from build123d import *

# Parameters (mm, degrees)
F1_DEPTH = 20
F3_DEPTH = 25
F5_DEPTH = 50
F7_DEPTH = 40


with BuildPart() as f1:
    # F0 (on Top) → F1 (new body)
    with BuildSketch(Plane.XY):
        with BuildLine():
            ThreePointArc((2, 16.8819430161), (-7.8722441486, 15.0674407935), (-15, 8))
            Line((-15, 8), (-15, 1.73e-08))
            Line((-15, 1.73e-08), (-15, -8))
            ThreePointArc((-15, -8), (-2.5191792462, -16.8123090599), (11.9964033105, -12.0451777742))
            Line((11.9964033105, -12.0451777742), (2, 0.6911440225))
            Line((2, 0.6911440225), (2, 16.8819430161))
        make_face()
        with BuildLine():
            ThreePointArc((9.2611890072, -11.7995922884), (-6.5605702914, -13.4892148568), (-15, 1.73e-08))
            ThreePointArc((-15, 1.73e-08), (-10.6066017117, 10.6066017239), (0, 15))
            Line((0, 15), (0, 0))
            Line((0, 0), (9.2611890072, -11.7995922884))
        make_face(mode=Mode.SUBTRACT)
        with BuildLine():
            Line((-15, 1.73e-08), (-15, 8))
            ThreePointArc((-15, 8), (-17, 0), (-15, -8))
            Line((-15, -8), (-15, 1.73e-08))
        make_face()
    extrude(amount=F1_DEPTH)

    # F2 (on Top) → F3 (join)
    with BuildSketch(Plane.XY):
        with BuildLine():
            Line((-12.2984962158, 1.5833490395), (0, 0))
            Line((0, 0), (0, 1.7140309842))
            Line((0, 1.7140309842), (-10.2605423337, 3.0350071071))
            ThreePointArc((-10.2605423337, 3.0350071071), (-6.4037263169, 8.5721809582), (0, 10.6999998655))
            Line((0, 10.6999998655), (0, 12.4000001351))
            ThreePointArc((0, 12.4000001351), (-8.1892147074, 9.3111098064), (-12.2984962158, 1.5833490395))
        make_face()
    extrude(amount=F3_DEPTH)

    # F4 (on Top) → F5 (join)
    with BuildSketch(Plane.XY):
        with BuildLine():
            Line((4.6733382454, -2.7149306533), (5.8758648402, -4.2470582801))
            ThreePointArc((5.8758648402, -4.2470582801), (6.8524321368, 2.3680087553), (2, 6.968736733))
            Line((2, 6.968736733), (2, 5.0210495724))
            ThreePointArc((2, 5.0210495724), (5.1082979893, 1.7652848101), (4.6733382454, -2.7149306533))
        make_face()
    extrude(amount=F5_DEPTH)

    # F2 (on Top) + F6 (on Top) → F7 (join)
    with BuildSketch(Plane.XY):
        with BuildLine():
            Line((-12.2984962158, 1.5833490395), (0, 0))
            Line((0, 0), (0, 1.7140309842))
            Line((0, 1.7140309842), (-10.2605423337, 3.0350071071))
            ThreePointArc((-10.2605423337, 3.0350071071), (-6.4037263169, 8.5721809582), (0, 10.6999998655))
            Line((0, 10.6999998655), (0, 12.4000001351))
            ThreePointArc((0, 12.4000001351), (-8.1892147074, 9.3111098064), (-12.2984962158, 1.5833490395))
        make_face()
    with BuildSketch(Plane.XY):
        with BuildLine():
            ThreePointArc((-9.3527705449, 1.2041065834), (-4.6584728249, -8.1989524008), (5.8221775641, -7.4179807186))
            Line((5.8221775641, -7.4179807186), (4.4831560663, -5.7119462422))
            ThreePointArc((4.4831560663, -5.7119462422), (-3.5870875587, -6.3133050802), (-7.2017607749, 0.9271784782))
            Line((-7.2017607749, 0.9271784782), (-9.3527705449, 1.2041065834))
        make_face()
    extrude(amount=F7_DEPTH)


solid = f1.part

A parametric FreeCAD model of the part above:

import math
import FreeCAD as App
import Part
import Sketcher

V = App.Vector

doc = App.newDocument("Part")
params = doc.addObject("Spreadsheet::Sheet", "Params")
for row, (alias, value) in enumerate([
    ("sketch1_radius", "17 mm"),
    ("sketch1_radius2", "15 mm"),
    ("pad1_length", "20 mm"),
    ("sketch2_radius", "10.7 mm"),
    ("sketch2_radius2", "12.4 mm"),
    ("pad2_length", "25 mm"),
    ("pad3_length", "50 mm"),
    ("sketch4_radius", "10.7 mm"),
    ("sketch4_radius2", "12.4 mm"),
    ("pad4_length", "40 mm"),
], start=1):
    params.set(f"A{row}", alias)
    params.set(f"B{row}", "=" + value)
    params.setAlias(f"B{row}", alias)

body = doc.addObject("PartDesign::Body", "Body")

# Sketch on XY plane
sketch1 = body.newObject("Sketcher::SketchObject", "Sketch")
sketch1.AttachmentSupport = (doc.getObject("XY_Plane"), [""])
sketch1.MapMode = "FlatFace"
sketch1.addGeometry(Part.LineSegment(V(11.996403, -12.045178, 0), V(2, 0.691144, 0)), False)
sketch1.addGeometry(Part.LineSegment(V(2, 0.691144, 0), V(2, 16.881943, 0)), False)
sketch1.addGeometry(Part.ArcOfCircle(Part.Circle(V(0, 0, 0), V(0, 0, 1), 17), math.radians(83.243673), math.radians(151.927513)), False)
sketch1.addGeometry(Part.ArcOfCircle(Part.Circle(V(0, 0, 0), V(0, 0, 1), 17), math.radians(151.927513), math.radians(314.883761)), False)
sketch1.addGeometry(Part.ArcOfCircle(Part.Circle(V(0, 0, 0), V(0, 0, 1), 15), math.radians(180), math.radians(308.127434)), False)
sketch1.addGeometry(Part.ArcOfCircle(Part.Circle(V(0, 0, 0), V(0, 0, 1), 15), math.radians(90), math.radians(180)), False)
sketch1.addGeometry(Part.LineSegment(V(0, 15, 0), V(0, 0, 0)), False)
sketch1.addGeometry(Part.LineSegment(V(0, 0, 0), V(9.261189, -11.799592, 0)), False)
sketch1.addConstraint(Sketcher.Constraint("Coincident", 0, 2, 1, 1))
sketch1.addConstraint(Sketcher.Constraint("Coincident", 1, 2, 2, 1))
sketch1.addConstraint(Sketcher.Constraint("Tangent", 2, 2, 3, 1))
sketch1.addConstraint(Sketcher.Constraint("Coincident", 3, 2, 0, 1))
sketch1.addConstraint(Sketcher.Constraint("Tangent", 4, 1, 5, 2))
sketch1.addConstraint(Sketcher.Constraint("Coincident", 5, 1, 6, 1))
sketch1.addConstraint(Sketcher.Constraint("Coincident", 6, 2, 7, 1))
sketch1.addConstraint(Sketcher.Constraint("Coincident", 7, 2, 4, 2))
sketch1.addConstraint(Sketcher.Constraint("Vertical", 1))
sketch1.addConstraint(Sketcher.Constraint("Vertical", 6))
sketch1.addConstraint(Sketcher.Constraint("Coincident", 2, 3, -1, 1))
sketch1.addConstraint(Sketcher.Constraint("Coincident", 4, 3, -1, 1))
sketch1.addConstraint(Sketcher.Constraint("Coincident", 6, 2, -1, 1))
sketch1.addConstraint(Sketcher.Constraint("Equal", 2, 3))
sketch1.addConstraint(Sketcher.Constraint("Equal", 4, 5))
sketch1.addConstraint(Sketcher.Constraint("PointOnObject", 4, 1, -1))
sketch1.addConstraint(Sketcher.Constraint("Parallel", 0, 7))
sketch1.addConstraint(Sketcher.Constraint("Vertical", 2, 2, 4, 1))
sketch1.addConstraint(Sketcher.Constraint("Radius", 2, 17.0))
sketch1.addConstraint(Sketcher.Constraint("Radius", 4, 15.0))
sketch1.addConstraint(Sketcher.Constraint("DistanceX", -1, 1, 0, 2, 2.0))
sketch1.addConstraint(Sketcher.Constraint("DistanceY", 1, 1, 1, 2, 16.190799))
sketch1.addConstraint(Sketcher.Constraint("Distance", 0, 16.190799))
sketch1.setExpression("Constraints[18]", "Params.sketch1_radius")
sketch1.setExpression("Constraints[19]", "Params.sketch1_radius2")
pad1 = body.newObject("PartDesign::Pad", "Pad")
pad1.Profile = sketch1
pad1.setExpression("Length", "Params.pad1_length")

# Sketch on XY plane
sketch2 = body.newObject("Sketcher::SketchObject", "Sketch001")
sketch2.AttachmentSupport = (doc.getObject("XY_Plane"), [""])
sketch2.MapMode = "FlatFace"
sketch2.addGeometry(Part.LineSegment(V(-12.298496, 1.583349, 0), V(0, 0, 0)), False)
sketch2.addGeometry(Part.LineSegment(V(0, 0, 0), V(0, 1.714031, 0)), False)
sketch2.addGeometry(Part.LineSegment(V(0, 1.714031, 0), V(-10.260542, 3.035007, 0)), False)
sketch2.addGeometry(Part.ArcOfCircle(Part.Circle(V(0, 0, 0), V(0, 0, 1), 10.7), math.radians(90), math.radians(163.522098)), False)
sketch2.addGeometry(Part.LineSegment(V(0, 10.7, 0), V(0, 12.4, 0)), False)
sketch2.addGeometry(Part.ArcOfCircle(Part.Circle(V(0, 0, 0), V(0, 0, 1), 12.4), math.radians(90), math.radians(172.663906)), False)
sketch2.addConstraint(Sketcher.Constraint("Coincident", 0, 2, 1, 1))
sketch2.addConstraint(Sketcher.Constraint("Coincident", 1, 2, 2, 1))
sketch2.addConstraint(Sketcher.Constraint("Coincident", 2, 2, 3, 2))
sketch2.addConstraint(Sketcher.Constraint("Coincident", 3, 1, 4, 1))
sketch2.addConstraint(Sketcher.Constraint("Coincident", 4, 2, 5, 1))
sketch2.addConstraint(Sketcher.Constraint("Coincident", 5, 2, 0, 1))
sketch2.addConstraint(Sketcher.Constraint("Vertical", 1))
sketch2.addConstraint(Sketcher.Constraint("Vertical", 4))
sketch2.addConstraint(Sketcher.Constraint("Coincident", 3, 3, -1, 1))
sketch2.addConstraint(Sketcher.Constraint("Coincident", 5, 3, -1, 1))
sketch2.addConstraint(Sketcher.Constraint("Coincident", 0, 2, -1, 1))
sketch2.addConstraint(Sketcher.Constraint("PointOnObject", 3, 1, -2))
sketch2.addConstraint(Sketcher.Constraint("Parallel", 0, 2))
sketch2.addConstraint(Sketcher.Constraint("Radius", 3, 10.7))
sketch2.addConstraint(Sketcher.Constraint("Radius", 5, 12.4))
sketch2.addConstraint(Sketcher.Constraint("DistanceY", 1, 1, 1, 2, 1.714031))
sketch2.addConstraint(Sketcher.Constraint("DistanceY", -1, 1, 5, 2, 1.583349))
sketch2.setExpression("Constraints[13]", "Params.sketch2_radius")
sketch2.setExpression("Constraints[14]", "Params.sketch2_radius2")
pad2 = body.newObject("PartDesign::Pad", "Pad001")
pad2.Profile = sketch2
pad2.setExpression("Length", "Params.pad2_length")

# Sketch on XY plane
sketch3 = body.newObject("Sketcher::SketchObject", "Sketch002")
sketch3.AttachmentSupport = (doc.getObject("XY_Plane"), [""])
sketch3.MapMode = "FlatFace"
sketch3.addGeometry(Part.LineSegment(V(4.673338, -2.714931, 0), V(5.875865, -4.247058, 0)), False)
sketch3.addGeometry(Part.ArcOfCircle(Part.Circle(V(0, 0, 0), V(0, 0, 1), 7.250055), math.radians(-35.859295), math.radians(73.986729)), False)
sketch3.addGeometry(Part.LineSegment(V(2, 6.968737, 0), V(2, 5.02105, 0)), False)
sketch3.addGeometry(Part.ArcOfCircle(Part.Circle(V(0, 0, 0), V(0, 0, 1), 5.404714), math.radians(-30.154032), math.radians(68.281466)), False)
sketch3.addConstraint(Sketcher.Constraint("Coincident", 0, 2, 1, 1))
sketch3.addConstraint(Sketcher.Constraint("Coincident", 1, 2, 2, 1))
sketch3.addConstraint(Sketcher.Constraint("Coincident", 2, 2, 3, 2))
sketch3.addConstraint(Sketcher.Constraint("Coincident", 3, 1, 0, 1))
sketch3.addConstraint(Sketcher.Constraint("Vertical", 2))
sketch3.addConstraint(Sketcher.Constraint("Coincident", 1, 3, -1, 1))
sketch3.addConstraint(Sketcher.Constraint("Coincident", 3, 3, -1, 1))
sketch3.addConstraint(Sketcher.Constraint("DistanceX", -1, 1, 1, 2, 2.0))
sketch3.addConstraint(Sketcher.Constraint("Radius", 1, 7.250055))
sketch3.addConstraint(Sketcher.Constraint("Radius", 3, 5.404714))
sketch3.addConstraint(Sketcher.Constraint("DistanceY", 0, 2, -1, 1, 4.247058))
sketch3.addConstraint(Sketcher.Constraint("DistanceX", -1, 1, 3, 1, 4.673338))
pad3 = body.newObject("PartDesign::Pad", "Pad002")
pad3.Profile = sketch3
pad3.setExpression("Length", "Params.pad3_length")

# Sketch on XY plane
sketch4 = body.newObject("Sketcher::SketchObject", "Sketch003")
sketch4.AttachmentSupport = (doc.getObject("XY_Plane"), [""])
sketch4.MapMode = "FlatFace"
sketch4.addGeometry(Part.LineSegment(V(-12.298496, 1.583349, 0), V(-9.352771, 1.204107, 0)), False)
sketch4.addGeometry(Part.ArcOfCircle(Part.Circle(V(0, 0, 0), V(0, 0, 1), 9.429962), math.radians(172.663906), math.radians(308.127434)), False)
sketch4.addGeometry(Part.LineSegment(V(5.822178, -7.417981, 0), V(4.483156, -5.711946, 0)), False)
sketch4.addGeometry(Part.ArcOfCircle(Part.Circle(V(0, 0, 0), V(0, 0, 1), 7.2612), math.radians(172.663906), math.radians(308.127434)), False)
sketch4.addGeometry(Part.LineSegment(V(-7.201761, 0.927178, 0), V(0, 0, 0)), False)
sketch4.addGeometry(Part.LineSegment(V(0, 0, 0), V(0, 1.714031, 0)), False)
sketch4.addGeometry(Part.LineSegment(V(0, 1.714031, 0), V(-10.260542, 3.035007, 0)), False)
sketch4.addGeometry(Part.ArcOfCircle(Part.Circle(V(0, 0, 0), V(0, 0, 1), 10.7), math.radians(90), math.radians(163.522098)), False)
sketch4.addGeometry(Part.LineSegment(V(0, 10.7, 0), V(0, 12.4, 0)), False)
sketch4.addGeometry(Part.ArcOfCircle(Part.Circle(V(0, 0, 0), V(0, 0, 1), 12.4), math.radians(90), math.radians(172.663906)), False)
sketch4.addConstraint(Sketcher.Constraint("Coincident", 0, 2, 1, 1))
sketch4.addConstraint(Sketcher.Constraint("Coincident", 1, 2, 2, 1))
sketch4.addConstraint(Sketcher.Constraint("Coincident", 2, 2, 3, 2))
sketch4.addConstraint(Sketcher.Constraint("Coincident", 3, 1, 4, 1))
sketch4.addConstraint(Sketcher.Constraint("Coincident", 4, 2, 5, 1))
sketch4.addConstraint(Sketcher.Constraint("Coincident", 5, 2, 6, 1))
sketch4.addConstraint(Sketcher.Constraint("Coincident", 6, 2, 7, 2))
sketch4.addConstraint(Sketcher.Constraint("Coincident", 7, 1, 8, 1))
sketch4.addConstraint(Sketcher.Constraint("Coincident", 8, 2, 9, 1))
sketch4.addConstraint(Sketcher.Constraint("Coincident", 9, 2, 0, 1))
sketch4.addConstraint(Sketcher.Constraint("Vertical", 5))
sketch4.addConstraint(Sketcher.Constraint("Vertical", 8))
sketch4.addConstraint(Sketcher.Constraint("Coincident", 1, 3, -1, 1))
sketch4.addConstraint(Sketcher.Constraint("Coincident", 3, 3, -1, 1))
sketch4.addConstraint(Sketcher.Constraint("Coincident", 7, 3, -1, 1))
sketch4.addConstraint(Sketcher.Constraint("Coincident", 9, 3, -1, 1))
sketch4.addConstraint(Sketcher.Constraint("Coincident", 4, 2, -1, 1))
sketch4.addConstraint(Sketcher.Constraint("PointOnObject", 7, 1, -2))
sketch4.addConstraint(Sketcher.Constraint("Parallel", 0, 4))
sketch4.addConstraint(Sketcher.Constraint("Parallel", 4, 6))
sketch4.addConstraint(Sketcher.Constraint("Radius", 7, 10.7))
sketch4.addConstraint(Sketcher.Constraint("Radius", 9, 12.4))
sketch4.addConstraint(Sketcher.Constraint("Radius", 3, 7.2612))
sketch4.addConstraint(Sketcher.Constraint("Radius", 1, 9.429962))
sketch4.addConstraint(Sketcher.Constraint("DistanceY", 5, 1, 5, 2, 1.714031))
sketch4.addConstraint(Sketcher.Constraint("DistanceY", 0, 2, 6, 2, 1.830901))
sketch4.addConstraint(Sketcher.Constraint("DistanceX", 0, 2, -1, 1, 9.352771))
sketch4.addConstraint(Sketcher.Constraint("DistanceY", 1, 2, -1, 1, 7.417981))
sketch4.addConstraint(Sketcher.Constraint("DistanceX", 2, 2, 1, 2, 1.339021))
sketch4.setExpression("Constraints[20]", "Params.sketch4_radius")
sketch4.setExpression("Constraints[21]", "Params.sketch4_radius2")
pad4 = body.newObject("PartDesign::Pad", "Pad003")
pad4.Profile = sketch4
pad4.setExpression("Length", "Params.pad4_length")

doc.recompute()
